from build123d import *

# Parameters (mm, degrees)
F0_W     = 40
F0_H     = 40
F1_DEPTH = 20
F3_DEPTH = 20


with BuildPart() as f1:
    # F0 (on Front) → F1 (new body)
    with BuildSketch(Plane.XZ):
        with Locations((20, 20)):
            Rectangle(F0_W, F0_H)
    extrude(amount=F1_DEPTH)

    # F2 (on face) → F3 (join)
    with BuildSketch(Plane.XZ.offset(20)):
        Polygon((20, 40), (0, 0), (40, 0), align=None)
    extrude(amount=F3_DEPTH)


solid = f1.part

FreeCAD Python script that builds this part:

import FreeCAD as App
import Part
import Sketcher
from FreeCAD import Vector
Q = App.Units.Quantity


def add_polygon(sketch, points):
    """Adds a closed chain of lines whose ends are joined by coincident constraints."""
    first, n = sketch.GeometryCount, len(points)
    for a, b in zip(points, points[1:] + points[:1]):
        sketch.addGeometry(Part.LineSegment(App.Vector(*a, 0), App.Vector(*b, 0)), False)
    for i in range(n):
        sketch.addConstraint(Sketcher.Constraint("Coincident", first + i, 2, first + (i + 1) % n, 1))

doc = App.newDocument("Part")
params = doc.addObject("Spreadsheet::Sheet", "Params")
for row, (alias, value) in enumerate([
    ("sketch1_width", "40 mm"),
    ("pad1_length", "20 mm"),
    ("sketch2_width", "40 mm"),
    ("pad2_length", "20 mm"),
], start=1):
    params.set(f"A{row}", alias)
    params.set(f"B{row}", "=" + value)
    params.setAlias(f"B{row}", alias)

body = doc.addObject("PartDesign::Body", "Body")

# Sketch on XZ plane
sketch1 = body.newObject("Sketcher::SketchObject", "Sketch")
sketch1.AttachmentSupport = (doc.getObject("XZ_Plane"), [""])
sketch1.MapMode = "FlatFace"
add_polygon(sketch1, [(0, 40), (0, 0), (40, 0), (40, 40)])  # lines 0-3
sketch1.addConstraint([
    Sketcher.Constraint("Vertical", 0),
    Sketcher.Constraint("Horizontal", 1),
    Sketcher.Constraint("Vertical", 2),
    Sketcher.Constraint("Horizontal", 3),
    Sketcher.Constraint("Coincident", 0, 2, -1, 1),
    Sketcher.Constraint("Equal", 3, 0),
    Sketcher.Constraint("DistanceX", 1, 1, 1, 2, Q("40 mm")),
])
sketch1.setExpression("Constraints[10]", "Params.sketch1_width")
pad1 = body.newObject("PartDesign::Pad", "Pad")
pad1.Profile = sketch1
pad1.setExpression("Length", "Params.pad1_length")

# Sketch on XZ plane
sketch2 = body.newObject("Sketcher::SketchObject", "Sketch001")
sketch2.AttachmentSupport = (doc.getObject("XZ_Plane"), [""])
sketch2.MapMode = "FlatFace"
sketch2.AttachmentOffset = App.Placement(Vector(0, 0, 20), App.Rotation())
add_polygon(sketch2, [(20, 40), (0, 0), (40, 0)])  # lines 0-2
sketch2.addConstraint([
    Sketcher.Constraint("Horizontal", 1),
    Sketcher.Constraint("Coincident", 0, 2, -1, 1),
    Sketcher.Constraint("Equal", 0, 2),
    Sketcher.Constraint("DistanceX", 1, 1, 1, 2, Q("40 mm")),
    Sketcher.Constraint("DistanceY", -1, 1, 2, 2, Q("40 mm")),
])
sketch2.setExpression("Constraints[6]", "Params.sketch2_width")
pad2 = body.newObject("PartDesign::Pad", "Pad001")
pad2.Profile = sketch2
pad2.setExpression("Length", "Params.pad2_length")

doc.recompute()
